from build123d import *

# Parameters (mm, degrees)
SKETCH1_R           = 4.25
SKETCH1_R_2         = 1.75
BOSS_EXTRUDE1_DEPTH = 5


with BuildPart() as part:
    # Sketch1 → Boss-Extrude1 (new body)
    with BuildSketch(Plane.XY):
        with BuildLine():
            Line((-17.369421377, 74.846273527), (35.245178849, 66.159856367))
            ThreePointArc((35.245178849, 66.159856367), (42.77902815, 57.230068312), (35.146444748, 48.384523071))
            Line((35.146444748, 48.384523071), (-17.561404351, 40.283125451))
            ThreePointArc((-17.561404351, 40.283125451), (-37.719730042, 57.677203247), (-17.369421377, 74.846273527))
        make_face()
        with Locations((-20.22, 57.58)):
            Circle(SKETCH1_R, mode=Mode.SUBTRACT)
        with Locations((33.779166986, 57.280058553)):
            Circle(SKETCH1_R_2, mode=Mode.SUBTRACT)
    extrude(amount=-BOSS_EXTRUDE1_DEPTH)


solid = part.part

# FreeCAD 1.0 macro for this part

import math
import FreeCAD as App
import Part
import Sketcher

V = App.Vector

doc = App.newDocument("Part")
body = doc.addObject("PartDesign::Body", "Body")

sketch1 = doc.addObject("Sketcher::SketchObject", "Sketch")
body.addObject(sketch1)
sketch1.AttachmentSupport = (doc.XY_Plane, [""])
sketch1.MapMode = "FlatFace"
sketch1.addGeometry(Part.LineSegment(V(35.2, 66.2, 0), V(-17.4, 74.8, 0)), False)
sketch1.addGeometry(Part.ArcOfCircle(Part.Circle(V(-20.2, 57.6, 0), V(0, 0, 1), 17.5), math.radians(81), math.radians(279)), False)
sketch1.addGeometry(Part.LineSegment(V(-17.6, 40.3, 0), V(35.1, 48.4, 0)), False)
sketch1.addGeometry(Part.ArcOfCircle(Part.Circle(V(33.8, 57.3, 0), V(0, 0, 1), 9), math.radians(-81), math.radians(81)), False)
sketch1.addGeometry(Part.Circle(V(33.8, 57.3, 0), V(0, 0, 1), 1.8), False)
sketch1.addGeometry(Part.Circle(V(-20.2, 57.6, 0), V(0, 0, 1), 4.2), False)
sketch1.addConstraint(Sketcher.Constraint("Tangent", 0, 2, 1, 1))
sketch1.addConstraint(Sketcher.Constraint("Tangent", 1, 2, 2, 1))
sketch1.addConstraint(Sketcher.Constraint("Tangent", 2, 2, 3, 1))
sketch1.addConstraint(Sketcher.Constraint("Tangent", 3, 2, 0, 1))
sketch1.addConstraint(Sketcher.Constraint("Coincident", 4, 3, 3, 3))
sketch1.addConstraint(Sketcher.Constraint("Coincident", 5, 3, 1, 3))
sketch1.addConstraint(Sketcher.Constraint("Radius", 3, 9.0))
sketch1.addConstraint(Sketcher.Constraint("Diameter", 4, 3.5))
sketch1.addConstraint(Sketcher.Constraint("Diameter", 5, 8.5))
sketch1.addConstraint(Sketcher.Constraint("Radius", 1, 17.5))
sketch1.addConstraint(Sketcher.Constraint("DistanceX", 1, 3, -1, 1, 20.22))
sketch1.addConstraint(Sketcher.Constraint("DistanceY", -1, 1, 1, 3, 57.58))
sketch1.addConstraint(Sketcher.Constraint("DistanceX", 0, 2, 3, 2, 52.6146))
sketch1.addConstraint(Sketcher.Constraint("DistanceY", -1, 1, 3, 3, 57.280059))
pad1 = doc.addObject("PartDesign::Pad", "Pad")
body.addObject(pad1)
pad1.Profile = sketch1
pad1.Length = 5
pad1.Reversed = True

doc.recompute()
